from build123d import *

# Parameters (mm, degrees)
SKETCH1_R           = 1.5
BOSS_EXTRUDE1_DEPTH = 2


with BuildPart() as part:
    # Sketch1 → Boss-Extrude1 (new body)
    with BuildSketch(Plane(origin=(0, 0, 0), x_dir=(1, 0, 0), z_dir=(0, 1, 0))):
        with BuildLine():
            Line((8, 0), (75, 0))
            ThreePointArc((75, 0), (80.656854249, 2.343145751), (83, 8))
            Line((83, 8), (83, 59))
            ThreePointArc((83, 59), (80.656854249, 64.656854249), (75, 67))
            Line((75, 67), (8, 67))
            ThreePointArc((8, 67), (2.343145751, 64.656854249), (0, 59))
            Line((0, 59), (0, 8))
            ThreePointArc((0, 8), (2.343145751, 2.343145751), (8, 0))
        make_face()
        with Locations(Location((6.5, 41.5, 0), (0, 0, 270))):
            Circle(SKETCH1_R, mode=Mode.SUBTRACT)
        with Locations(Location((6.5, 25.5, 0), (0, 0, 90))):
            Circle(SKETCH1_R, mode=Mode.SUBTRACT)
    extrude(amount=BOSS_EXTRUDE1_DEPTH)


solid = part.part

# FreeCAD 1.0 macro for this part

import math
import FreeCAD as App
import Part
import Sketcher

V = App.Vector
Q = App.Units.Quantity

doc = App.newDocument("Part")
body = doc.addObject("PartDesign::Body", "Body")

# Sketch on XZ plane
sketch1 = doc.addObject("Sketcher::SketchObject", "Sketch")
body.addObject(sketch1)
sketch1.AttachmentSupport = (doc.XZ_Plane, [""])
sketch1.MapMode = "FlatFace"
sketch1.addGeometry([
    Part.LineSegment(V(8, 0, 0), V(75, 0, 0)),  # 0
    Part.ArcOfCircle(Part.Circle(V(75, -8, 0), V(0, 0, 1), 8), math.radians(0), math.radians(90)),  # 1
    Part.LineSegment(V(83, -8, 0), V(83, -59, 0)),  # 2
    Part.ArcOfCircle(Part.Circle(V(75, -59, 0), V(0, 0, 1), 8), math.radians(-90), math.radians(0)),  # 3
    Part.LineSegment(V(75, -67, 0), V(8, -67, 0)),  # 4
    Part.ArcOfCircle(Part.Circle(V(8, -59, 0), V(0, 0, 1), 8), math.radians(-180), math.radians(-90)),  # 5
    Part.LineSegment(V(0, -59, 0), V(0, -8, 0)),  # 6
    Part.ArcOfCircle(Part.Circle(V(8, -8, 0), V(0, 0, 1), 8), math.radians(90), math.radians(180)),  # 7
    Part.Circle(V(6.5, -25.5, 0), V(0, 0, 1), 1.5),  # 8
    Part.Circle(V(6.5, -41.5, 0), V(0, 0, 1), 1.5),  # 9
], False)
sketch1.addConstraint([
    Sketcher.Constraint("Tangent", 0, 2, 1, 2),
    Sketcher.Constraint("Tangent", 1, 1, 2, 1),
    Sketcher.Constraint("Tangent", 2, 2, 3, 2),
    Sketcher.Constraint("Tangent", 3, 1, 4, 1),
    Sketcher.Constraint("Tangent", 4, 2, 5, 2),
    Sketcher.Constraint("Tangent", 5, 1, 6, 1),
    Sketcher.Constraint("Tangent", 6, 2, 7, 2),
    Sketcher.Constraint("Tangent", 7, 1, 0, 1),
    Sketcher.Constraint("Horizontal", 0),
    Sketcher.Constraint("Vertical", 2),
    Sketcher.Constraint("Horizontal", 4),
    Sketcher.Constraint("Vertical", 6),
    Sketcher.Constraint("Equal", 1, 3),
    Sketcher.Constraint("Equal", 3, 5),
    Sketcher.Constraint("Equal", 5, 7),
    Sketcher.Constraint("Equal", 8, 9),
    Sketcher.Constraint("PointOnObject", 0, 2, -1),
    Sketcher.Constraint("PointOnObject", 5, 1, -2),
    Sketcher.Constraint("Vertical", 8, 3, 9, 3),
    Sketcher.Constraint("Diameter", 8, Q("3 mm")),
    Sketcher.Constraint("Radius", 1, Q("8 mm")),
    Sketcher.Constraint("DistanceX", 0, 1, 0, 2, Q("67 mm")),
    Sketcher.Constraint("DistanceY", 2, 2, 2, 1, Q("51 mm")),
    Sketcher.Constraint("DistanceY", 9, 3, 8, 3, Q("16 mm")),
    Sketcher.Constraint("DistanceX", -1, 1, 8, 3, Q("6.5 mm")),
    Sketcher.Constraint("DistanceY", 8, 3, -1, 1, Q("25.5 mm")),
])
pad1 = doc.addObject("PartDesign::Pad", "Pad")
body.addObject(pad1)
pad1.Profile = sketch1
pad1.Length = 2
pad1.Reversed = True

doc.recompute()
